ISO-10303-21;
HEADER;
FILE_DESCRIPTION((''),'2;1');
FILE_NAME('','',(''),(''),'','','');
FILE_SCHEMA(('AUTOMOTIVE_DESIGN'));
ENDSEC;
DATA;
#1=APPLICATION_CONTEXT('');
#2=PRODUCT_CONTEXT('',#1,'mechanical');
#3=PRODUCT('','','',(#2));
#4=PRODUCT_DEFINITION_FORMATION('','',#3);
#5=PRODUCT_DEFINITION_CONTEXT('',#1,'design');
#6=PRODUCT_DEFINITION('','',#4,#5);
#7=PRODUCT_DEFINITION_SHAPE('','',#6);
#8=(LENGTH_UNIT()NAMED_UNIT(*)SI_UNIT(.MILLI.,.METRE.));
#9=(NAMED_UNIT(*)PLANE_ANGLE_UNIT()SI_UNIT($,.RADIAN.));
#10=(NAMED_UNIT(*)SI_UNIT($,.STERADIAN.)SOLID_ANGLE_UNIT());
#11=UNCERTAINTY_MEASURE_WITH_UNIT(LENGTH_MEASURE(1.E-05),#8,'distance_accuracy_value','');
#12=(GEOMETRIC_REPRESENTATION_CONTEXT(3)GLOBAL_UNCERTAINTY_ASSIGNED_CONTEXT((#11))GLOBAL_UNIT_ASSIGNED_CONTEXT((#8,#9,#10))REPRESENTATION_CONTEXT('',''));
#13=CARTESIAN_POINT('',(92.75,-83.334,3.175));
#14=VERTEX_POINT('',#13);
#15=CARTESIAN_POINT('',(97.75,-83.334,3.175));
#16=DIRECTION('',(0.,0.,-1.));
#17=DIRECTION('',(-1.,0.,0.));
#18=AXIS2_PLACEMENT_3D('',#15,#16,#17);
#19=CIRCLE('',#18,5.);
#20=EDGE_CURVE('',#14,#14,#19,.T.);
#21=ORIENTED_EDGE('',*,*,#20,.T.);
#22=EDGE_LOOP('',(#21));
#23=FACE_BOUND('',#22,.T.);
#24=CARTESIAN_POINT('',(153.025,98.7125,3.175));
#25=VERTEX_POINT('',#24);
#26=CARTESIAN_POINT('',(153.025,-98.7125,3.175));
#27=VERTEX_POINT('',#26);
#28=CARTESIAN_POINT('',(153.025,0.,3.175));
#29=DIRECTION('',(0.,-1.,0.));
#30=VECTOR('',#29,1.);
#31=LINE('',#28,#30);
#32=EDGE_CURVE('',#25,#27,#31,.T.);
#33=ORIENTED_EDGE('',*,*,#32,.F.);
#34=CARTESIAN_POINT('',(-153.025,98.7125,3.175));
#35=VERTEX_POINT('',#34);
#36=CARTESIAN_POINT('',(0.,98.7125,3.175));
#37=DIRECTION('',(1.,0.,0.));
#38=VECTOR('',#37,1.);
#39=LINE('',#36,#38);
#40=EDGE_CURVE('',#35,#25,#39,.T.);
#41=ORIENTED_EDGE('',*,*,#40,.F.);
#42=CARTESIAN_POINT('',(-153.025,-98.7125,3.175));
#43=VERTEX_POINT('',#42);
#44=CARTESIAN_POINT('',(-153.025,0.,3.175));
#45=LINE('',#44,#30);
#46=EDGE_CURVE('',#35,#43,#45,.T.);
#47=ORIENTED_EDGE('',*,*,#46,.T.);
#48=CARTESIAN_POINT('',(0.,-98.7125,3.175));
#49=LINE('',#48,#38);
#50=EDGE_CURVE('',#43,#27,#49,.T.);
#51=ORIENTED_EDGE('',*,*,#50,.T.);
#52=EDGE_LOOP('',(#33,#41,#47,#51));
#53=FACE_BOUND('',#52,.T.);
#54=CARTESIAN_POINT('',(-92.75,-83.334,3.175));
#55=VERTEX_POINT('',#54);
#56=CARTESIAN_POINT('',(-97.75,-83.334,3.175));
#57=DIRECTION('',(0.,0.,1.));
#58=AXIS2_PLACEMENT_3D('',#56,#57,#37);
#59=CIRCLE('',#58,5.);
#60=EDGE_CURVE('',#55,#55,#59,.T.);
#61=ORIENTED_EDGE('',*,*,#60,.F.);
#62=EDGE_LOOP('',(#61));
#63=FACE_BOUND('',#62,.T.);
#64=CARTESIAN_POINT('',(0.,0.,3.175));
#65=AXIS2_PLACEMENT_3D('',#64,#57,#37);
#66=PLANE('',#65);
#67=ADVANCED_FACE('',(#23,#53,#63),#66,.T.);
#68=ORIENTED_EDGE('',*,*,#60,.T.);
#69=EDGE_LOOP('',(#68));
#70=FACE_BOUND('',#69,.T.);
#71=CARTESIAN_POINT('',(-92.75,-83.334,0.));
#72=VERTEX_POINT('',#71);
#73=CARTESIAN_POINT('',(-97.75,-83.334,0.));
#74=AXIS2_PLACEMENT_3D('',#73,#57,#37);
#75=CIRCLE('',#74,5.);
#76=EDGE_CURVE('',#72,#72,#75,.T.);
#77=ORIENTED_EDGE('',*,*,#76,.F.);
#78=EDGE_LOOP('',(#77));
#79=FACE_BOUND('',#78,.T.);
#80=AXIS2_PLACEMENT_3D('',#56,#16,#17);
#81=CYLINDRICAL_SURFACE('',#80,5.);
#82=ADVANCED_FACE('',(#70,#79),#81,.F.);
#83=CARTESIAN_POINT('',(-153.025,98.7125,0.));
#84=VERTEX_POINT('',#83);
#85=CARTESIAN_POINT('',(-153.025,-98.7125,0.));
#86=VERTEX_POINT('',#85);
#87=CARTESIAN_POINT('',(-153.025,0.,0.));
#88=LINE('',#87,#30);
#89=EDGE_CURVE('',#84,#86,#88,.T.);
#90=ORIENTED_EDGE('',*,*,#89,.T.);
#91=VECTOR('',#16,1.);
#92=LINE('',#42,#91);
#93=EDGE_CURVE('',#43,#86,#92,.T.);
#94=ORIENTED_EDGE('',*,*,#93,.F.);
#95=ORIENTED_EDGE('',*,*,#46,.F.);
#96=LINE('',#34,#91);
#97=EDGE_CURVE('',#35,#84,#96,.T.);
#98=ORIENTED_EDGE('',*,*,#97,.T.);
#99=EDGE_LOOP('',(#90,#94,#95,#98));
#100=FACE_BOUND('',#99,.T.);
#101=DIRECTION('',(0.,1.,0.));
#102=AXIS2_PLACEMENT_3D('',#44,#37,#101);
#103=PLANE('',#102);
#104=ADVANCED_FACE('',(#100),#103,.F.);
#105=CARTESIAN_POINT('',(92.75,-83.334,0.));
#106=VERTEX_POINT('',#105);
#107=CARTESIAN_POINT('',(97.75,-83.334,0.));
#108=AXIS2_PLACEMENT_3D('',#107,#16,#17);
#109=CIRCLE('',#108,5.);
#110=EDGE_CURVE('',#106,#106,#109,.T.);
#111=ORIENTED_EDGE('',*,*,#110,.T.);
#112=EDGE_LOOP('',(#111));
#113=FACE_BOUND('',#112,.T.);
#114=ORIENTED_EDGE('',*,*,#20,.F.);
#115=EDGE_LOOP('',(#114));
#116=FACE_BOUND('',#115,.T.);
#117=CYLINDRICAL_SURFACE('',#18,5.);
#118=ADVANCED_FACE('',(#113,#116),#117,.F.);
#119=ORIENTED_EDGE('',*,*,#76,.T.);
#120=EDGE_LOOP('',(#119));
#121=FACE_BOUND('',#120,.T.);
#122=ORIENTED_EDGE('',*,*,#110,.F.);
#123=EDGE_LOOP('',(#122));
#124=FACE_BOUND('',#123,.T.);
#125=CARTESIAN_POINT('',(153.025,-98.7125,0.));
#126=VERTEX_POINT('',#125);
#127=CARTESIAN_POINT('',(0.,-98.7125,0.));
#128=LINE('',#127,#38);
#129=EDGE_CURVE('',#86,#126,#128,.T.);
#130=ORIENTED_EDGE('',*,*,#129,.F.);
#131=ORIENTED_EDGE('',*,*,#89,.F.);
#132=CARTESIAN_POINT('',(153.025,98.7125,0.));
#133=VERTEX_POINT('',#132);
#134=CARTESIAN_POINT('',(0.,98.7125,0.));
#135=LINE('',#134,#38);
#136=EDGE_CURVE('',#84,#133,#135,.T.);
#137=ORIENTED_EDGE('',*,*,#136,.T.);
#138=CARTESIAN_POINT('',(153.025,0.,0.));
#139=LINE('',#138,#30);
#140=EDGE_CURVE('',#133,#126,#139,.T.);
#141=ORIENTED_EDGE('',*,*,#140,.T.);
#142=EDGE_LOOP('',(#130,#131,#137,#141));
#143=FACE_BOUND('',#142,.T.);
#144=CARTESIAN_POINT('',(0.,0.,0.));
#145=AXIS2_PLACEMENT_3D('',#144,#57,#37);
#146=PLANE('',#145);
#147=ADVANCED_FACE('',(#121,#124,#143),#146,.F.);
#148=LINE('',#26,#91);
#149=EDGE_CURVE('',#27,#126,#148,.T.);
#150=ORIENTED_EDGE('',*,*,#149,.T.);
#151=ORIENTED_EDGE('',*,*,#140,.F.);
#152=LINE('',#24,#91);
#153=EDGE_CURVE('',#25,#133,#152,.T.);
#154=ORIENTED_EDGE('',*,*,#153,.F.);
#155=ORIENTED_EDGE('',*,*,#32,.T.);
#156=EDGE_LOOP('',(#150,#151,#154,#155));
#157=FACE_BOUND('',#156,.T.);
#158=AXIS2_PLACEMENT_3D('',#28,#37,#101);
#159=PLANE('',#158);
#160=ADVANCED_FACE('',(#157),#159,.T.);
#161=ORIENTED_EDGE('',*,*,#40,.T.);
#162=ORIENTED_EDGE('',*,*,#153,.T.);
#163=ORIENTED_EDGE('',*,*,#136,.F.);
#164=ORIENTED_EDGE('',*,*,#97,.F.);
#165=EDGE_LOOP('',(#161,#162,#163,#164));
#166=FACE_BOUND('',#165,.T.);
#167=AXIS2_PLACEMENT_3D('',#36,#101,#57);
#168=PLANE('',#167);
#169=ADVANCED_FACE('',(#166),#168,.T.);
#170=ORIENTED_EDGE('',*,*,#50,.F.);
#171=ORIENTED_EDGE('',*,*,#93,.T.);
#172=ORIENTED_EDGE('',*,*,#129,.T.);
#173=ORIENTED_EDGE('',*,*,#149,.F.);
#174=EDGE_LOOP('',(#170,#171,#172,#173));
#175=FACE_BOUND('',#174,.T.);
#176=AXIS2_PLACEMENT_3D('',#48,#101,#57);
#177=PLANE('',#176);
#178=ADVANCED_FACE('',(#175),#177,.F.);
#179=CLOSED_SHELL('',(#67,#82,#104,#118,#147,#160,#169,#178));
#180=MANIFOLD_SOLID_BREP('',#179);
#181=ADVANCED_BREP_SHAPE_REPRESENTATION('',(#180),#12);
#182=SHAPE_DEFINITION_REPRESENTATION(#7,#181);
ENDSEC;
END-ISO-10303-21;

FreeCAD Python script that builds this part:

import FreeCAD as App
import Part
import Sketcher
from FreeCAD import Vector


def add_polygon(sketch, points):
    """Adds a closed chain of lines whose ends are joined by coincident constraints."""
    first, n = sketch.GeometryCount, len(points)
    for a, b in zip(points, points[1:] + points[:1]):
        sketch.addGeometry(Part.LineSegment(App.Vector(*a, 0), App.Vector(*b, 0)), False)
    for i in range(n):
        sketch.addConstraint(Sketcher.Constraint("Coincident", first + i, 2, first + (i + 1) % n, 1))

doc = App.newDocument("Part")
body = doc.addObject("PartDesign::Body", "Body")

sketch1 = body.newObject("Sketcher::SketchObject", "Sketch")
sketch1.AttachmentSupport = (doc.getObject("XY_Plane"), [""])
sketch1.MapMode = "FlatFace"
add_polygon(sketch1, [(-153, -99), (153, -99), (153, 99), (-153, 99)])
sketch1.addConstraint([
    Sketcher.Constraint("Horizontal", 0),
    Sketcher.Constraint("Vertical", 1),
    Sketcher.Constraint("Horizontal", 2),
    Sketcher.Constraint("Vertical", 3),
    Sketcher.Constraint("Symmetric", 0, 2, 2, 2, -1, 1),
    Sketcher.Constraint("DistanceX", 0, 1, 0, 2, 306.05),
    Sketcher.Constraint("DistanceY", 1, 1, 1, 2, 197.425),
])
pad1 = body.newObject("PartDesign::Pad", "Pad")
pad1.Profile = sketch1
pad1.Length = 3.175

sketch2 = body.newObject("Sketcher::SketchObject", "Sketch001")
sketch2.AttachmentSupport = (doc.getObject("XY_Plane"), [""])
sketch2.MapMode = "FlatFace"
sketch2.addGeometry(Part.Circle(Vector(98, -83, 0), Vector(0, 0, 1), 5), False)
sketch2.addConstraint([
    Sketcher.Constraint("Diameter", 0, 10.0),
    Sketcher.Constraint("DistanceX", -1, 1, 0, 3, 97.75),
    Sketcher.Constraint("DistanceY", 0, 3, -1, 1, 83.334),
])
pocket1 = body.newObject("PartDesign::Pocket", "Pocket")
pocket1.Profile = sketch2
pocket1.Type = "ThroughAll"
pocket1.Reversed = True
doc.recompute()

mirrored = body.newObject("PartDesign::Mirrored", "Mirrored")
mirrored.Originals = [pocket1]
mirrored.MirrorPlane = (doc.getObject("YZ_Plane"), [""])
body.Tip = mirrored

doc.recompute()
